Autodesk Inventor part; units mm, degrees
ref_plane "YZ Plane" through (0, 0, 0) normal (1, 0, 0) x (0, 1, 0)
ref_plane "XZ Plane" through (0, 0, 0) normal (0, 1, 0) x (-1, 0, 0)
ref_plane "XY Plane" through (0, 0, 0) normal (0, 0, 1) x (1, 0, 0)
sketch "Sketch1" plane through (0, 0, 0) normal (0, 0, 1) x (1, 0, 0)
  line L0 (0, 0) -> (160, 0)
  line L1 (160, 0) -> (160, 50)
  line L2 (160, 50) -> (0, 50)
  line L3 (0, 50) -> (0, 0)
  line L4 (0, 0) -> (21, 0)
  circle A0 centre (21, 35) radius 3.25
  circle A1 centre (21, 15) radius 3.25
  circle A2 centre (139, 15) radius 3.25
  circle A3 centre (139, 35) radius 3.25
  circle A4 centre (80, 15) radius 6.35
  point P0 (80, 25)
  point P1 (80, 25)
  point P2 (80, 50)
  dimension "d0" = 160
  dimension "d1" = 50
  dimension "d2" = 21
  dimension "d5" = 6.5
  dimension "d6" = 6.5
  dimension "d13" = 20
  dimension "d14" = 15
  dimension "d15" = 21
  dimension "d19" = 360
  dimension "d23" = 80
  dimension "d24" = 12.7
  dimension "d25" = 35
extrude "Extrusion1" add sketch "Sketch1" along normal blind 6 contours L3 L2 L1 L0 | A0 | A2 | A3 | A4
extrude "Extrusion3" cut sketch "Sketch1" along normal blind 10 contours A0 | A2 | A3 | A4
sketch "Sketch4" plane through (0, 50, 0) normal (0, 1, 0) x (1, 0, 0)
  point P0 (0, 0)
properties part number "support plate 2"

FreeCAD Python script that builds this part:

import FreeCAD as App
import Part
import Sketcher


def add_polygon(sketch, points):
    """Adds a closed chain of lines whose ends are joined by coincident constraints."""
    first, n = sketch.GeometryCount, len(points)
    for a, b in zip(points, points[1:] + points[:1]):
        sketch.addGeometry(Part.LineSegment(App.Vector(*a, 0), App.Vector(*b, 0)), False)
    for i in range(n):
        sketch.addConstraint(Sketcher.Constraint("Coincident", first + i, 2, first + (i + 1) % n, 1))

doc = App.newDocument("Part")
body = doc.addObject("PartDesign::Body", "Body")

# Sketch on XY plane
sketch1 = body.newObject("Sketcher::SketchObject", "Sketch")
sketch1.AttachmentSupport = (doc.getObject("XY_Plane"), [""])
sketch1.MapMode = "FlatFace"
add_polygon(sketch1, [(0, 50), (0, 0), (160, 0), (160, 50)])  # lines 0-3
sketch1.addGeometry(Part.Circle(App.Vector(21, 15, 0), App.Vector(0, 0, 1), 3.25), False)  # 4
sketch1.addConstraint([
    Sketcher.Constraint("Vertical", 0),
    Sketcher.Constraint("Horizontal", 1),
    Sketcher.Constraint("Vertical", 2),
    Sketcher.Constraint("Horizontal", 3),
    Sketcher.Constraint("Coincident", 0, 2, -1, 1),
    Sketcher.Constraint("Diameter", 4, 6.5),
    Sketcher.Constraint("DistanceX", 1, 1, 1, 2, 160.0),
    Sketcher.Constraint("DistanceY", 0, 2, 0, 1, 50.0),
    Sketcher.Constraint("DistanceX", -1, 1, 4, 3, 21.0),
    Sketcher.Constraint("DistanceY", -1, 1, 4, 3, 15.0),
])
pad1 = body.newObject("PartDesign::Pad", "Pad")
pad1.Profile = sketch1
pad1.Length = 6

# Sketch on XY plane
sketch2 = body.newObject("Sketcher::SketchObject", "Sketch001")
sketch2.AttachmentSupport = (doc.getObject("XY_Plane"), [""])
sketch2.MapMode = "FlatFace"
sketch2.addGeometry([
    Part.Circle(App.Vector(21, 35, 0), App.Vector(0, 0, 1), 3.25),
    Part.Circle(App.Vector(139, 15, 0), App.Vector(0, 0, 1), 3.25),
    Part.Circle(App.Vector(139, 35, 0), App.Vector(0, 0, 1), 3.25),
    Part.Circle(App.Vector(80, 15, 0), App.Vector(0, 0, 1), 6.35),
], False)
sketch2.addConstraint([
    Sketcher.Constraint("Equal", 0, 1),
    Sketcher.Constraint("Equal", 1, 2),
    Sketcher.Constraint("Horizontal", 0, 3, 2, 3),
    Sketcher.Constraint("Horizontal", 1, 3, 3, 3),
    Sketcher.Constraint("Vertical", 1, 3, 2, 3),
    Sketcher.Constraint("Diameter", 0, 6.5),
    Sketcher.Constraint("Diameter", 3, 12.7),
    Sketcher.Constraint("DistanceX", -1, 1, 0, 3, 21.0),
    Sketcher.Constraint("DistanceY", -1, 1, 0, 3, 35.0),
    Sketcher.Constraint("DistanceY", -1, 1, 1, 3, 15.0),
    Sketcher.Constraint("DistanceX", -1, 1, 3, 3, 80.0),
    Sketcher.Constraint("DistanceX", -1, 1, 1, 3, 139.0),
])
pocket1 = body.newObject("PartDesign::Pocket", "Pocket")
pocket1.Profile = sketch2
pocket1.Length = 10
pocket1.Reversed = True

doc.recompute()
